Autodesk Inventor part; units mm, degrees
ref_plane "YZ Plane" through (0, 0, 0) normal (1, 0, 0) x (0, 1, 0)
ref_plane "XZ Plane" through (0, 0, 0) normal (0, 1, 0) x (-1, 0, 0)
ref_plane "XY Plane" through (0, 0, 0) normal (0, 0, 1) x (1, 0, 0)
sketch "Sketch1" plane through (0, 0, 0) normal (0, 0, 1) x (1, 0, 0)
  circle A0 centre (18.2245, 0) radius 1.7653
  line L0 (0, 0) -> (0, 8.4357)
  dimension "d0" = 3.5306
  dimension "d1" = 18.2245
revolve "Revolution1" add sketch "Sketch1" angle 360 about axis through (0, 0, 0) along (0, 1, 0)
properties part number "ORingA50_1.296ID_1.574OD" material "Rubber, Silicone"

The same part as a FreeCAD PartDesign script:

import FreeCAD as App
import Part
import Sketcher

V = App.Vector
Q = App.Units.Quantity

doc = App.newDocument("Part")
body = doc.addObject("PartDesign::Body", "Body")

sketch1 = body.newObject("Sketcher::SketchObject", "Sketch")
sketch1.AttachmentSupport = (doc.getObject("XY_Plane"), [""])
sketch1.MapMode = "FlatFace"
sketch1.addGeometry(Part.Circle(V(18.2, 0, 0), V(0, 0, 1), 1.8), False)
sketch1.addConstraint(Sketcher.Constraint("PointOnObject", 0, 3, -1))
sketch1.addConstraint(Sketcher.Constraint("Diameter", 0, Q("0.139 in")))
sketch1.addConstraint(Sketcher.Constraint("DistanceX", -1, 1, 0, 3, Q("0.7175 in")))
revolution = body.newObject("PartDesign::Revolution", "Revolution")
revolution.Profile = sketch1
revolution.ReferenceAxis = (sketch1, ["V_Axis"])
revolution.Angle = 360

doc.recompute()
